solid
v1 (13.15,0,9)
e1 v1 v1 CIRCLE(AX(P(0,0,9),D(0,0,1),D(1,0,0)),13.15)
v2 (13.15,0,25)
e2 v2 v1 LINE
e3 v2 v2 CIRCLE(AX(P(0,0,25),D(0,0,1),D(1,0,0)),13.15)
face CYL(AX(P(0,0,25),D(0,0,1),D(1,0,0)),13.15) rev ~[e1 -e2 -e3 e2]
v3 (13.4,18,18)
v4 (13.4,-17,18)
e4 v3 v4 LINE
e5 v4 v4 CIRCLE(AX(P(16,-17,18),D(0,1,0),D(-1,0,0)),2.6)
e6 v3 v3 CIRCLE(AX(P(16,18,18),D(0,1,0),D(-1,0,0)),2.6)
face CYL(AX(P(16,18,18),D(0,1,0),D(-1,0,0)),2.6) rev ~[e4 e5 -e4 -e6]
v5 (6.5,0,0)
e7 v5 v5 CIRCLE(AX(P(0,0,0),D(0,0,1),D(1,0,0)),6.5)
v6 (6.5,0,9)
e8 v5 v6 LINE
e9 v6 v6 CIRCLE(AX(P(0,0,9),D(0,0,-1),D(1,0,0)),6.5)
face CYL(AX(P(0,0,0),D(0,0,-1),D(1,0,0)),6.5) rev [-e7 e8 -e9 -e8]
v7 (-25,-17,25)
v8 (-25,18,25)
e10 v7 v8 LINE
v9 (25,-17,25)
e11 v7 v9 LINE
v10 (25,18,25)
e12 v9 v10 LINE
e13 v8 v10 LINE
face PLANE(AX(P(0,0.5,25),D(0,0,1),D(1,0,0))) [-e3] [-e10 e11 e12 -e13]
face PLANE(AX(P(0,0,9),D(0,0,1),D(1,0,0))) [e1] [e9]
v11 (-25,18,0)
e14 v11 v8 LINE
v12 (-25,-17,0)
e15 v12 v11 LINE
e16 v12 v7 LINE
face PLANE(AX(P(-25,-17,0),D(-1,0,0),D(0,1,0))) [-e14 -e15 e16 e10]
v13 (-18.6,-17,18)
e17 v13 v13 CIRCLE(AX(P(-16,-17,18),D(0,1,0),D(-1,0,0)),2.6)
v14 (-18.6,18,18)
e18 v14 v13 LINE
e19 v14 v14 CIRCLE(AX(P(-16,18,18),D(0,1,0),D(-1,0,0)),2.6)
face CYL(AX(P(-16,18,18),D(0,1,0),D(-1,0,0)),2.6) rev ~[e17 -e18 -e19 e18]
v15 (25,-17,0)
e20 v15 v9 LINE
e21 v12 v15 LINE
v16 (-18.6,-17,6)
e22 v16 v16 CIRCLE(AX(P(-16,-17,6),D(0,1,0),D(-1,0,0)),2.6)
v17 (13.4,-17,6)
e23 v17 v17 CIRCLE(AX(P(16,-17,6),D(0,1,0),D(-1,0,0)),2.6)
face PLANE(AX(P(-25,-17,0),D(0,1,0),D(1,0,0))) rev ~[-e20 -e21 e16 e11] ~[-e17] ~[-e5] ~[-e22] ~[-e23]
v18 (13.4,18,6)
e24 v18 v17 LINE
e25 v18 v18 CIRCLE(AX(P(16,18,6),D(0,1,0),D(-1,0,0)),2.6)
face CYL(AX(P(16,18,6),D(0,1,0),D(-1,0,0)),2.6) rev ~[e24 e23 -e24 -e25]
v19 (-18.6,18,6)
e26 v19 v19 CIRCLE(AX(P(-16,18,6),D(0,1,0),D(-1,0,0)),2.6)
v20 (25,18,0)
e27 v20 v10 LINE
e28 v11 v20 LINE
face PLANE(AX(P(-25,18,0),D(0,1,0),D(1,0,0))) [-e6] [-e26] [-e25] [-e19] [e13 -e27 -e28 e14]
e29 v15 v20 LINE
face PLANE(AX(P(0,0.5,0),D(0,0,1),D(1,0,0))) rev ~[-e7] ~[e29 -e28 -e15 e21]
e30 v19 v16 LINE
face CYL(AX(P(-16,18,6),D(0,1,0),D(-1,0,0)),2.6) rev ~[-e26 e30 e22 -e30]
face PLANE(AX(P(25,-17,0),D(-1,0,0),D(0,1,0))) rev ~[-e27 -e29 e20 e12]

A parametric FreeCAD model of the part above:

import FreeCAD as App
import Part
import Sketcher
from FreeCAD import Vector

doc = App.newDocument("Part")
body = doc.addObject("PartDesign::Body", "Body")

sketch1 = body.newObject("Sketcher::SketchObject", "Sketch")
sketch1.AttachmentSupport = (doc.getObject("XY_Plane"), [""])
sketch1.MapMode = "FlatFace"
sketch1.addGeometry([
    Part.LineSegment(Vector(-25, 18, 0), Vector(-25, -17, 0)),
    Part.LineSegment(Vector(-25, -17, 0), Vector(25, -17, 0)),
    Part.LineSegment(Vector(25, -17, 0), Vector(25, 18, 0)),
    Part.LineSegment(Vector(25, 18, 0), Vector(-25, 18, 0)),
    Part.Circle(Vector(0, 0, 0), Vector(0, 0, 1), 6),
], False)
sketch1.addConstraint([
    Sketcher.Constraint("Coincident", 0, 2, 1, 1),
    Sketcher.Constraint("Coincident", 1, 2, 2, 1),
    Sketcher.Constraint("Coincident", 2, 2, 3, 1),
    Sketcher.Constraint("Coincident", 3, 2, 0, 1),
    Sketcher.Constraint("Vertical", 0),
    Sketcher.Constraint("Horizontal", 1),
    Sketcher.Constraint("Vertical", 2),
    Sketcher.Constraint("Horizontal", 3),
    Sketcher.Constraint("Coincident", 4, 3, -1, 1),
    Sketcher.Constraint("Diameter", 4, 13.0),
    Sketcher.Constraint("DistanceX", 1, 1, 1, 2, 50.0),
    Sketcher.Constraint("DistanceY", 0, 2, 0, 1, 35.0),
    Sketcher.Constraint("DistanceX", 0, 2, -1, 1, 25.0),
    Sketcher.Constraint("DistanceY", 0, 2, -1, 1, 17.0),
])
pad1 = body.newObject("PartDesign::Pad", "Pad")
pad1.Profile = sketch1
pad1.Length = 25

sketch2 = body.newObject("Sketcher::SketchObject", "Sketch001")
sketch2.AttachmentSupport = (doc.getObject("XY_Plane"), [""])
sketch2.MapMode = "FlatFace"
sketch2.AttachmentOffset = App.Placement(Vector(0, 0, 25), App.Rotation())
sketch2.addGeometry(Part.Circle(Vector(0, 0, 0), Vector(0, 0, 1), 13), False)
sketch2.addConstraint([
    Sketcher.Constraint("Coincident", 0, 3, -1, 1),
    Sketcher.Constraint("Diameter", 0, 26.3),
])
pocket1 = body.newObject("PartDesign::Pocket", "Pocket")
pocket1.Profile = sketch2
pocket1.Length = 16

sketch3 = body.newObject("Sketcher::SketchObject", "Sketch002")
sketch3.AttachmentSupport = (doc.getObject("XZ_Plane"), [""])
sketch3.MapMode = "FlatFace"
sketch3.AttachmentOffset = App.Placement(Vector(0, 0, -18), App.Rotation())
sketch3.addGeometry([
    Part.Circle(Vector(16, 6, 0), Vector(0, 0, 1), 2.6),
    Part.Circle(Vector(-16, 6, 0), Vector(0, 0, 1), 2.6),
    Part.Circle(Vector(16, 18, 0), Vector(0, 0, 1), 2.6),
    Part.Circle(Vector(-16, 18, 0), Vector(0, 0, 1), 2.6),
], False)
sketch3.addConstraint([
    Sketcher.Constraint("Equal", 0, 1),
    Sketcher.Constraint("Equal", 1, 2),
    Sketcher.Constraint("Equal", 2, 3),
    Sketcher.Constraint("Symmetric", 0, 3, 1, 3, -2),
    Sketcher.Constraint("Symmetric", 2, 3, 3, 3, -2),
    Sketcher.Constraint("Vertical", 0, 3, 2, 3),
    Sketcher.Constraint("Diameter", 0, 5.2),
    Sketcher.Constraint("DistanceX", -1, 1, 0, 3, 16.0),
    Sketcher.Constraint("DistanceY", -1, 1, 0, 3, 6.0),
    Sketcher.Constraint("DistanceY", -1, 1, 2, 3, 18.0),
])
pocket2 = body.newObject("PartDesign::Pocket", "Pocket001")
pocket2.Profile = sketch3
pocket2.Type = "ThroughAll"
pocket2.Reversed = True

doc.recompute()
